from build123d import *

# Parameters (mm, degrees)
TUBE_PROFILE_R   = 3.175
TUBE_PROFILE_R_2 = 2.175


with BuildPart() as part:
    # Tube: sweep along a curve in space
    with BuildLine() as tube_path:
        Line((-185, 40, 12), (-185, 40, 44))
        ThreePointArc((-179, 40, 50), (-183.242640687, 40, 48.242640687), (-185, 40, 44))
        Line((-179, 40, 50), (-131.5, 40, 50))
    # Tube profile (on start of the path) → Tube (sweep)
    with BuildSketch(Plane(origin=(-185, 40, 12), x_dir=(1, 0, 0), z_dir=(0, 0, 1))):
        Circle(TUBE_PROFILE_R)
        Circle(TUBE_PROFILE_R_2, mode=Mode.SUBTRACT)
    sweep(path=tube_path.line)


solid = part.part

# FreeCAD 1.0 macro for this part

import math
import FreeCAD as App
import Part
import Sketcher
Q = App.Units.Quantity

doc = App.newDocument("Part")
body = doc.addObject("PartDesign::Body", "Body")

# Sketch on XY plane
sketch1 = body.newObject("Sketcher::SketchObject", "Sketch")
sketch1.AttachmentSupport = (doc.getObject("XY_Plane"), [""])
sketch1.MapMode = "FlatFace"
sketch1.AttachmentOffset = App.Placement(App.Vector(0, 0, 12), App.Rotation())
sketch1.addGeometry([
    Part.Circle(App.Vector(-185, 40, 0), App.Vector(0, 0, 1), 3.175),
    Part.Circle(App.Vector(-185, 40, 0), App.Vector(0, 0, 1), 2.175),
], False)
sketch1.addConstraint([
    Sketcher.Constraint("Coincident", 1, 3, 0, 3),
    Sketcher.Constraint("Diameter", 0, Q("6.35 mm")),
    Sketcher.Constraint("Diameter", 1, Q("4.35 mm")),
    Sketcher.Constraint("DistanceX", 0, 3, -1, 1, Q("185 mm")),
    Sketcher.Constraint("DistanceY", -1, 1, 0, 3, Q("40 mm")),
])

# Sketch on XZ plane
sketch2 = body.newObject("Sketcher::SketchObject", "Sketch001")
sketch2.AttachmentSupport = (doc.getObject("XZ_Plane"), [""])
sketch2.MapMode = "FlatFace"
sketch2.AttachmentOffset = App.Placement(App.Vector(0, 0, -40), App.Rotation())
sketch2.addGeometry([
    Part.LineSegment(App.Vector(-185, 12, 0), App.Vector(-185, 44, 0)),
    Part.ArcOfCircle(Part.Circle(App.Vector(-179, 44, 0), App.Vector(0, 0, 1), 6), math.radians(90), math.radians(180)),
    Part.LineSegment(App.Vector(-179, 50, 0), App.Vector(-131.5, 50, 0)),
], False)
sketch2.addConstraint([
    Sketcher.Constraint("Tangent", 0, 2, 1, 2),
    Sketcher.Constraint("Tangent", 1, 1, 2, 1),
    Sketcher.Constraint("Vertical", 0),
    Sketcher.Constraint("Horizontal", 2),
    Sketcher.Constraint("Radius", 1, Q("6 mm")),
    Sketcher.Constraint("DistanceY", 0, 1, 0, 2, Q("32 mm")),
    Sketcher.Constraint("DistanceX", 2, 1, 2, 2, Q("47.5 mm")),
    Sketcher.Constraint("DistanceX", 1, 3, -1, 1, Q("179 mm")),
    Sketcher.Constraint("DistanceY", -1, 1, 1, 3, Q("44 mm")),
])
doc.recompute()

additivepipe = body.newObject("PartDesign::AdditivePipe", "AdditivePipe")
additivepipe.Profile = sketch1
additivepipe.Spine = (sketch2, ["Edge1", "Edge2", "Edge3"])

doc.recompute()
